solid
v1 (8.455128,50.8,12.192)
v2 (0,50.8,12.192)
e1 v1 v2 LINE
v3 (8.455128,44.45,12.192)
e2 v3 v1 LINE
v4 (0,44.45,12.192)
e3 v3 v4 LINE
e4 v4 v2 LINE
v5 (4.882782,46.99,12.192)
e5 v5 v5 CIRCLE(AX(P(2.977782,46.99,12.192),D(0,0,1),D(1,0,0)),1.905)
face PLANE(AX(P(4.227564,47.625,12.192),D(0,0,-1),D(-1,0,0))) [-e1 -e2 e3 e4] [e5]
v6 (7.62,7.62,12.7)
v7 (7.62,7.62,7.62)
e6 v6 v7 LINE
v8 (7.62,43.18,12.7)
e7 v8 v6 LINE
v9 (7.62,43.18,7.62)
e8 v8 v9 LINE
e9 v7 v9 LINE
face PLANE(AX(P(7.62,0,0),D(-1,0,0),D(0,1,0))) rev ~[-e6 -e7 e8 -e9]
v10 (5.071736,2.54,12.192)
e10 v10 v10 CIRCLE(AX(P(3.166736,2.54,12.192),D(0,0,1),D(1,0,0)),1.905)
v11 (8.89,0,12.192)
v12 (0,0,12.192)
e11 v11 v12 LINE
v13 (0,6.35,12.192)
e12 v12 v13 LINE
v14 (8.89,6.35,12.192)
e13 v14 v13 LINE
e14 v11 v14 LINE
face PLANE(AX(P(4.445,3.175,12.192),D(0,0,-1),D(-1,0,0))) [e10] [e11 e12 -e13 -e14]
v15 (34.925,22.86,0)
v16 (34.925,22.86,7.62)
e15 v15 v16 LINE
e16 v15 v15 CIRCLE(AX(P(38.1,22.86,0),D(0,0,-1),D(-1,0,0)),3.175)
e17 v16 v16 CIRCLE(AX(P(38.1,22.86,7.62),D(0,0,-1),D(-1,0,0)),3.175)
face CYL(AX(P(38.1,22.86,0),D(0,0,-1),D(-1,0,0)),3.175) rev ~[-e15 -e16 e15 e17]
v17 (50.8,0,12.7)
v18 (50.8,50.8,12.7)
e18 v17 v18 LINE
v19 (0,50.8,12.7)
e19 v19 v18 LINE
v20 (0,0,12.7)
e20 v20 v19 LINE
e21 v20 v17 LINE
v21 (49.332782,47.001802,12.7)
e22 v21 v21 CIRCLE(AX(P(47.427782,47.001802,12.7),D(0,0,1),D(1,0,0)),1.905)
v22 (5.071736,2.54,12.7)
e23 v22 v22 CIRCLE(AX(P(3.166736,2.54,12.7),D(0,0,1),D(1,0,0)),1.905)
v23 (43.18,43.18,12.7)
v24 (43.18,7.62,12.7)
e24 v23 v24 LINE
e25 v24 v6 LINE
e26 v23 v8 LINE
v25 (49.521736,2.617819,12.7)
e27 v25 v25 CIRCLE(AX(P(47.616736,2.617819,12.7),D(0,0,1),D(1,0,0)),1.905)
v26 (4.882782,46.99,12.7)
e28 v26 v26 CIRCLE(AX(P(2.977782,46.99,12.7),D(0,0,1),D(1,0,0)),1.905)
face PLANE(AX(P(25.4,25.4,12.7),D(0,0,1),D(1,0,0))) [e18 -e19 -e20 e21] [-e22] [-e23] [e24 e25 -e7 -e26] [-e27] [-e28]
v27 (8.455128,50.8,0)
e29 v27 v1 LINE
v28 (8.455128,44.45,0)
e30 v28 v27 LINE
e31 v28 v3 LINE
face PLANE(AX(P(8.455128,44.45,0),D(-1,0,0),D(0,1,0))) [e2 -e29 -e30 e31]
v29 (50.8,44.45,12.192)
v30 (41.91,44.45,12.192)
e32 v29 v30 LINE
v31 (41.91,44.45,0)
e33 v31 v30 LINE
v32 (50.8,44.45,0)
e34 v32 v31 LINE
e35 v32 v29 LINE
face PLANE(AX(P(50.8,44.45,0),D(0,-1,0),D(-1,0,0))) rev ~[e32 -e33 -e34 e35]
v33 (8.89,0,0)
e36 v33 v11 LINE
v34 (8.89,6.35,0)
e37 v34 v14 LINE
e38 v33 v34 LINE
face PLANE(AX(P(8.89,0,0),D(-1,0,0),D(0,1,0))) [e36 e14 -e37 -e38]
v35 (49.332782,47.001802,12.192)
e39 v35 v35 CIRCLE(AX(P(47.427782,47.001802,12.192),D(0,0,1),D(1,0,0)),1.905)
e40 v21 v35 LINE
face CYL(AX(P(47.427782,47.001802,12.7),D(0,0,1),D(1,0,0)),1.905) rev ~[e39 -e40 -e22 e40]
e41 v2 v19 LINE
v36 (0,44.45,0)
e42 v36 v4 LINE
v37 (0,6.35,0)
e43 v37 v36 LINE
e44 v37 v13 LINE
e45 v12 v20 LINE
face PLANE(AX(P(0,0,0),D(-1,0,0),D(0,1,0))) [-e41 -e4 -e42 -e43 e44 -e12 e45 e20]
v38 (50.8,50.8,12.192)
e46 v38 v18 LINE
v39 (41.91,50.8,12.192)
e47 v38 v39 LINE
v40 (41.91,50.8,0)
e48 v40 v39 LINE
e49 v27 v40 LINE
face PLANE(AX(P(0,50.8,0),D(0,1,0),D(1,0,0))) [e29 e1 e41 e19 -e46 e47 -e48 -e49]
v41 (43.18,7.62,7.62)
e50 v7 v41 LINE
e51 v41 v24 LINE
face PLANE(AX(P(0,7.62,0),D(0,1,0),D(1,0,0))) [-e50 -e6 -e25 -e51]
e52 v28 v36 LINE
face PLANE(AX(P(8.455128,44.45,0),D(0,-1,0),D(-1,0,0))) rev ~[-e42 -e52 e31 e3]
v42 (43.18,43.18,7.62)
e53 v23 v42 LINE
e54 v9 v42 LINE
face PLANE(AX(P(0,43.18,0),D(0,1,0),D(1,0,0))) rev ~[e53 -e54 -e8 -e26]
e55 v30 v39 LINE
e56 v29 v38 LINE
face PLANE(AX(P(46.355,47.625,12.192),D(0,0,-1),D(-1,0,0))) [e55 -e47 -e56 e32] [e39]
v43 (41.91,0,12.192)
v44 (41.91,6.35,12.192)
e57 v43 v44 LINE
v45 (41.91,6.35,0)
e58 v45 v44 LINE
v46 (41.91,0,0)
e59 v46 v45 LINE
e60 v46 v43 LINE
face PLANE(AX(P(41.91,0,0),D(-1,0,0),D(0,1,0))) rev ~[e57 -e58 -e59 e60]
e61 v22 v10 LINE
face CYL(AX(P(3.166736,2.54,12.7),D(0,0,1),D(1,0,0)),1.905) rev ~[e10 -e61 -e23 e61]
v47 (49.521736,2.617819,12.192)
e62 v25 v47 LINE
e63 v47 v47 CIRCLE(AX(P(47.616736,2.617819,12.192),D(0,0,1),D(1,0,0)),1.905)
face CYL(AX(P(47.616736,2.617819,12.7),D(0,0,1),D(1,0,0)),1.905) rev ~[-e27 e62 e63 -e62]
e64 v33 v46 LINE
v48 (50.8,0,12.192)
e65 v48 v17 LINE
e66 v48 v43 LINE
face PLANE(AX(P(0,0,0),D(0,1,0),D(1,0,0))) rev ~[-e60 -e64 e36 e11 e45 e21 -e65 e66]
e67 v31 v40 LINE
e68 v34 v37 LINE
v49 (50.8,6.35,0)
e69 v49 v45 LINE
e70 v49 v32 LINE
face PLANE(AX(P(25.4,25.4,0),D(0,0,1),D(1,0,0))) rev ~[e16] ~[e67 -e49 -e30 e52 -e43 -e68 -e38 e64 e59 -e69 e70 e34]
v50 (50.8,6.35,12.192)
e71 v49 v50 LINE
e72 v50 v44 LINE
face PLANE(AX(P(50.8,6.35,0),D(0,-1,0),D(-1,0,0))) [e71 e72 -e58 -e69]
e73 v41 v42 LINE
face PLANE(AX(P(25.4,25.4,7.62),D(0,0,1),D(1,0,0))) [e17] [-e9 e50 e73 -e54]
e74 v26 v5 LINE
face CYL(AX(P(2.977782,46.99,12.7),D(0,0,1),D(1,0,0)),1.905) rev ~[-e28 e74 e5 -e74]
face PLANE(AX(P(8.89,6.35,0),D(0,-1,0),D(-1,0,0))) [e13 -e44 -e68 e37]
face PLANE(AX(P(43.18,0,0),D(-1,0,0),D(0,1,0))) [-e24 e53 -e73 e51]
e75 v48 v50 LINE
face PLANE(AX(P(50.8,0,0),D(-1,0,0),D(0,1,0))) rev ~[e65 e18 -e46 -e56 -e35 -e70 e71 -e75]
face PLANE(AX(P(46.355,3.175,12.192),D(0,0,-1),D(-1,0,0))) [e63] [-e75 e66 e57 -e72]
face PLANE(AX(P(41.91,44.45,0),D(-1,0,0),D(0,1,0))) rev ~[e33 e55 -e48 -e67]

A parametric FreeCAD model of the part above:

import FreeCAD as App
import Part
import Sketcher
from FreeCAD import Vector
Q = App.Units.Quantity


def faces_at(feature, points):
    """Names of the faces that lie closest to the given points."""
    faces = feature.Shape.Faces
    near = lambda p: min(range(len(faces)), key=lambda i: faces[i].distToShape(Part.Vertex(*p))[0])
    return sorted({f"Face{near(p) + 1}" for p in points})

doc = App.newDocument("Part")
body = doc.addObject("PartDesign::Body", "Body")

# Sketch on XY plane
sketch1 = body.newObject("Sketcher::SketchObject", "Sketch")
sketch1.AttachmentSupport = (doc.getObject("XY_Plane"), [""])
sketch1.MapMode = "FlatFace"
sketch1.addGeometry([
    Part.LineSegment(Vector(0, 50.8, 0), Vector(0, 0, 0)),
    Part.LineSegment(Vector(0, 0, 0), Vector(50.8, 0, 0)),
    Part.LineSegment(Vector(50.8, 0, 0), Vector(50.8, 50.8, 0)),
    Part.LineSegment(Vector(50.8, 50.8, 0), Vector(0, 50.8, 0)),
], False)
sketch1.addConstraint([
    Sketcher.Constraint("Coincident", 0, 2, 1, 1),
    Sketcher.Constraint("Coincident", 1, 2, 2, 1),
    Sketcher.Constraint("Coincident", 2, 2, 3, 1),
    Sketcher.Constraint("Coincident", 3, 2, 0, 1),
    Sketcher.Constraint("Vertical", 0),
    Sketcher.Constraint("Horizontal", 1),
    Sketcher.Constraint("Vertical", 2),
    Sketcher.Constraint("Horizontal", 3),
    Sketcher.Constraint("Coincident", 0, 2, -1, 1),
    Sketcher.Constraint("Equal", 3, 0),
    Sketcher.Constraint("DistanceX", 1, 1, 1, 2, Q("2 in")),
])
pad1 = body.newObject("PartDesign::Pad", "Pad")
pad1.Profile = sketch1
pad1.Length = Q("0.5 in")
doc.recompute()

thickness = body.newObject("PartDesign::Thickness", "Thickness")
thickness.Base = (pad1, faces_at(pad1, [(25.4, 25.4, 12.7)]))
thickness.Value = Q("0.3 in")
thickness.Reversed = True
thickness.Join = "Intersection"

# Sketch on XY plane
sketch2 = body.newObject("Sketcher::SketchObject", "Sketch001")
sketch2.AttachmentSupport = (doc.getObject("XY_Plane"), [""])
sketch2.MapMode = "FlatFace"
sketch2.addGeometry([
    Part.LineSegment(Vector(50.8, 50.8, 0), Vector(50.8, 44.45, 0)),  # 0
    Part.LineSegment(Vector(50.8, 44.45, 0), Vector(41.91, 44.45, 0)),  # 1
    Part.LineSegment(Vector(41.91, 44.45, 0), Vector(41.91, 50.8, 0)),  # 2
    Part.LineSegment(Vector(41.91, 50.8, 0), Vector(50.8, 50.8, 0)),  # 3
    Part.LineSegment(Vector(50.8, 6.35, 0), Vector(50.8, 0, 0)),  # 4
    Part.LineSegment(Vector(50.8, 0, 0), Vector(41.91, 0, 0)),  # 5
    Part.LineSegment(Vector(41.91, 0, 0), Vector(41.91, 6.35, 0)),  # 6
    Part.LineSegment(Vector(41.91, 6.35, 0), Vector(50.8, 6.35, 0)),  # 7
    Part.LineSegment(Vector(8.89, 6.35, 0), Vector(8.89, 0, 0)),  # 8
    Part.LineSegment(Vector(8.89, 0, 0), Vector(0, 0, 0)),  # 9
    Part.LineSegment(Vector(0, 0, 0), Vector(0, 6.35, 0)),  # 10
    Part.LineSegment(Vector(0, 6.35, 0), Vector(8.89, 6.35, 0)),  # 11
    Part.LineSegment(Vector(8.455128, 50.8, 0), Vector(8.455128, 44.45, 0)),  # 12
    Part.LineSegment(Vector(8.455128, 44.45, 0), Vector(0, 44.45, 0)),  # 13
    Part.LineSegment(Vector(0, 44.45, 0), Vector(0, 50.8, 0)),  # 14
    Part.LineSegment(Vector(0, 50.8, 0), Vector(8.455128, 50.8, 0)),  # 15
], False)
sketch2.addConstraint([
    Sketcher.Constraint("Coincident", 0, 2, 1, 1),
    Sketcher.Constraint("Coincident", 1, 2, 2, 1),
    Sketcher.Constraint("Coincident", 2, 2, 3, 1),
    Sketcher.Constraint("Coincident", 3, 2, 0, 1),
    Sketcher.Constraint("Coincident", 4, 2, 5, 1),
    Sketcher.Constraint("Coincident", 5, 2, 6, 1),
    Sketcher.Constraint("Coincident", 6, 2, 7, 1),
    Sketcher.Constraint("Coincident", 7, 2, 4, 1),
    Sketcher.Constraint("Coincident", 8, 2, 9, 1),
    Sketcher.Constraint("Coincident", 9, 2, 10, 1),
    Sketcher.Constraint("Coincident", 10, 2, 11, 1),
    Sketcher.Constraint("Coincident", 11, 2, 8, 1),
    Sketcher.Constraint("Coincident", 12, 2, 13, 1),
    Sketcher.Constraint("Coincident", 13, 2, 14, 1),
    Sketcher.Constraint("Coincident", 14, 2, 15, 1),
    Sketcher.Constraint("Coincident", 15, 2, 12, 1),
    Sketcher.Constraint("Vertical", 0),
    Sketcher.Constraint("Horizontal", 1),
    Sketcher.Constraint("Vertical", 2),
    Sketcher.Constraint("Horizontal", 3),
    Sketcher.Constraint("Vertical", 4),
    Sketcher.Constraint("Horizontal", 5),
    Sketcher.Constraint("Vertical", 6),
    Sketcher.Constraint("Horizontal", 7),
    Sketcher.Constraint("Vertical", 8),
    Sketcher.Constraint("Horizontal", 9),
    Sketcher.Constraint("Vertical", 10),
    Sketcher.Constraint("Horizontal", 11),
    Sketcher.Constraint("Vertical", 12),
    Sketcher.Constraint("Horizontal", 13),
    Sketcher.Constraint("Vertical", 14),
    Sketcher.Constraint("Horizontal", 15),
    Sketcher.Constraint("Coincident", 9, 2, -1, 1),
    Sketcher.Constraint("PointOnObject", 4, 2, -1),
    Sketcher.Constraint("PointOnObject", 13, 2, -2),
    Sketcher.Constraint("Horizontal", 7, 2, 10, 2),
    Sketcher.Constraint("Horizontal", 1, 2, 12, 2),
    Sketcher.Constraint("Horizontal", 3, 2, 14, 2),
    Sketcher.Constraint("Vertical", 3, 2, 4, 2),
    Sketcher.Constraint("Vertical", 2, 2, 5, 2),
    Sketcher.Constraint("Equal", 7, 9),
    Sketcher.Constraint("Equal", 2, 4),
    Sketcher.Constraint("DistanceX", -1, 1, 0, 2, Q("2 in")),
    Sketcher.Constraint("DistanceY", -1, 1, 2, 2, Q("2 in")),
    Sketcher.Constraint("DistanceX", 1, 2, 1, 1, Q("0.35 in")),
    Sketcher.Constraint("DistanceY", 0, 2, 0, 1, Q("0.25 in")),
    Sketcher.Constraint("DistanceX", 13, 2, 13, 1, 8.455128),
])
pocket1 = body.newObject("PartDesign::Pocket", "Pocket")
pocket1.Profile = sketch2
pocket1.Length = Q("0.48 in")
pocket1.Reversed = True

# Sketch on XY plane
sketch3 = body.newObject("Sketcher::SketchObject", "Sketch002")
sketch3.AttachmentSupport = (doc.getObject("XY_Plane"), [""])
sketch3.MapMode = "FlatFace"
sketch3.AttachmentOffset = App.Placement(Vector(0, 0, 0.5 * 25.4), App.Rotation())
sketch3.addGeometry([
    Part.Circle(Vector(2.977782, 46.99, 0), Vector(0, 0, 1), 1.905),
    Part.Circle(Vector(47.427782, 47.001802, 0), Vector(0, 0, 1), 1.905),
    Part.Circle(Vector(3.166736, 2.54, 0), Vector(0, 0, 1), 1.905),
    Part.Circle(Vector(47.616736, 2.617819, 0), Vector(0, 0, 1), 1.905),
], False)
sketch3.addConstraint([
    Sketcher.Constraint("Equal", 0, 1),
    Sketcher.Constraint("Equal", 1, 2),
    Sketcher.Constraint("Equal", 2, 3),
    Sketcher.Constraint("Diameter", 0, Q("0.15 in")),
    Sketcher.Constraint("DistanceY", -1, 1, 2, 3, Q("0.1 in")),
    Sketcher.Constraint("DistanceY", -1, 1, 0, 3, Q("1.85 in")),
    Sketcher.Constraint("DistanceX", 0, 3, 1, 3, Q("1.75 in")),
    Sketcher.Constraint("DistanceX", 2, 3, 3, 3, Q("1.75 in")),
    Sketcher.Constraint("DistanceY", -1, 1, 3, 3, 2.617819),
    Sketcher.Constraint("DistanceX", -1, 1, 0, 3, 2.977782),
    Sketcher.Constraint("DistanceY", -1, 1, 1, 3, 47.001802),
    Sketcher.Constraint("DistanceX", -1, 1, 2, 3, 3.166736),
])
pocket2 = body.newObject("PartDesign::Pocket", "Pocket001")
pocket2.Profile = sketch3
pocket2.Length = Q("0.81 in")

# Sketch on XY plane
sketch4 = body.newObject("Sketcher::SketchObject", "Sketch003")
sketch4.AttachmentSupport = (doc.getObject("XY_Plane"), [""])
sketch4.MapMode = "FlatFace"
sketch4.addGeometry(Part.Circle(Vector(38.1, 22.86, 0), Vector(0, 0, 1), 3.175), False)
sketch4.addConstraint([
    Sketcher.Constraint("Diameter", 0, Q("0.25 in")),
    Sketcher.Constraint("DistanceX", -1, 1, 0, 3, Q("1.5 in")),
    Sketcher.Constraint("DistanceY", -1, 1, 0, 3, Q("0.9 in")),
])
pocket3 = body.newObject("PartDesign::Pocket", "Pocket002")
pocket3.Profile = sketch4
pocket3.Length = Q("0.35 in")
pocket3.Reversed = True

doc.recompute()
